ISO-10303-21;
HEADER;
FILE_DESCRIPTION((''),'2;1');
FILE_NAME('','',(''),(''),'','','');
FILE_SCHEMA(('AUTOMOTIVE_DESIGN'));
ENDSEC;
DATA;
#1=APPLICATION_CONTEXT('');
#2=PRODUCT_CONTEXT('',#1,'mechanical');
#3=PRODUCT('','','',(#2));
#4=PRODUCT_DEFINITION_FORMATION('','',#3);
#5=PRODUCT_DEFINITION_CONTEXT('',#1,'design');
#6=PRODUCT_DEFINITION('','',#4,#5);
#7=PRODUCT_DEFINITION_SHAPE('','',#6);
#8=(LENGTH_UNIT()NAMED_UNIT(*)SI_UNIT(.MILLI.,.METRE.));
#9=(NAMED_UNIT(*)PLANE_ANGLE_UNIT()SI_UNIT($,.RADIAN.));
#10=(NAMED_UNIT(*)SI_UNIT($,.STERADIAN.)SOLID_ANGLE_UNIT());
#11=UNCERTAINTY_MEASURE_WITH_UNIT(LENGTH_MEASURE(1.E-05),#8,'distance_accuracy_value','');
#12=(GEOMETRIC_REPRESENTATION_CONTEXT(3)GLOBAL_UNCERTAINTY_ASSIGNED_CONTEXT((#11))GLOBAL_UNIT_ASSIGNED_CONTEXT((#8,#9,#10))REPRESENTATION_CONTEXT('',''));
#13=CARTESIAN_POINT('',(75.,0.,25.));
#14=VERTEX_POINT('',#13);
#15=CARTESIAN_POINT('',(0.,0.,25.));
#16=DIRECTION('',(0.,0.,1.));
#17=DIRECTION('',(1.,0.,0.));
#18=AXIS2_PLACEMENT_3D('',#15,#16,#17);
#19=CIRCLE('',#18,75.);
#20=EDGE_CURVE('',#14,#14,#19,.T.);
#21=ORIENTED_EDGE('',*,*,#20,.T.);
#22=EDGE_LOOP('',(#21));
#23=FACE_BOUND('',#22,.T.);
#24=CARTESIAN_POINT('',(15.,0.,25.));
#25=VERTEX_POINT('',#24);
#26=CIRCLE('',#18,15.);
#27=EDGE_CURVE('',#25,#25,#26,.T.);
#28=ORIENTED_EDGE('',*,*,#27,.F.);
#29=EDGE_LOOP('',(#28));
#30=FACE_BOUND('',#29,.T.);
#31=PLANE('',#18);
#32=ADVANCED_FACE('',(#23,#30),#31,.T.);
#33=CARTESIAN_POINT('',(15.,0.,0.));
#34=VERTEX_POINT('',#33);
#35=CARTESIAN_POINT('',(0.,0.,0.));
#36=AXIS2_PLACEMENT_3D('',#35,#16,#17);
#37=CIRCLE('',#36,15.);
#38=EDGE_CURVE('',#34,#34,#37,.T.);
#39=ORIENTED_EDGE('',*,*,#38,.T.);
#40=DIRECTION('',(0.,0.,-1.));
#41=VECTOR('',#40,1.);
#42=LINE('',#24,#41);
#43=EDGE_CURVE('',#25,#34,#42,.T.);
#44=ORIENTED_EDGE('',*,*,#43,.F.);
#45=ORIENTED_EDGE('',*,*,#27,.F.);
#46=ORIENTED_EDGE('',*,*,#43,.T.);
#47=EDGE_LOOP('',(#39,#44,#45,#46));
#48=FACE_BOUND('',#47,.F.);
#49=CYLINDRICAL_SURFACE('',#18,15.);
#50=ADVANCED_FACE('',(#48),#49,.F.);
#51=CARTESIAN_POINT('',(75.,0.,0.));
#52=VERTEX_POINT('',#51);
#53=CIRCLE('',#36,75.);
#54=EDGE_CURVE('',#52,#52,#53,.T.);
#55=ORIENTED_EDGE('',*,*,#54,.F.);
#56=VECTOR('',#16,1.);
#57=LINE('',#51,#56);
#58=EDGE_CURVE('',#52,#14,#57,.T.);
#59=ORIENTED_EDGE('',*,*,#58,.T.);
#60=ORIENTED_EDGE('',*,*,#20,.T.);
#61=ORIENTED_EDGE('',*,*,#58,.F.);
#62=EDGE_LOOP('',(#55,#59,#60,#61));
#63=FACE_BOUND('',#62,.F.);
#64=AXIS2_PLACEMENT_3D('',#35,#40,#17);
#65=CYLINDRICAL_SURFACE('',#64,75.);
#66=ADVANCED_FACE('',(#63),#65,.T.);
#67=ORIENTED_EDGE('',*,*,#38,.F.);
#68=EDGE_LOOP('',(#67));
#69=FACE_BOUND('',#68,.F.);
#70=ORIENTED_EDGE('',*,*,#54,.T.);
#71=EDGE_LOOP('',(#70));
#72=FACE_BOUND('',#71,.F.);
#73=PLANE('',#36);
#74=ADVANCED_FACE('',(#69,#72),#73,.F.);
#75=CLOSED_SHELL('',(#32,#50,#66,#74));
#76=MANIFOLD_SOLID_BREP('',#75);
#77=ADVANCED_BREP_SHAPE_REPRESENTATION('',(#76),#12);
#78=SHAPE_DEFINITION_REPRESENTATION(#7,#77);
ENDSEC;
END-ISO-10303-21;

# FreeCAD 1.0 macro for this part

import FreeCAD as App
import Part
import Sketcher
from FreeCAD import Vector

doc = App.newDocument("Part")
body = doc.addObject("PartDesign::Body", "Body")

# Sketch on XY plane
sketch1 = body.newObject("Sketcher::SketchObject", "Sketch")
sketch1.AttachmentSupport = (doc.getObject("XY_Plane"), [""])
sketch1.MapMode = "FlatFace"
sketch1.addGeometry(Part.Circle(Vector(0, 0, 0), Vector(0, 0, 1), 75), False)
sketch1.addConstraint([
    Sketcher.Constraint("Coincident", 0, 3, -1, 1),
    Sketcher.Constraint("Diameter", 0, 150.0),
])
pad1 = body.newObject("PartDesign::Pad", "Pad")
pad1.Profile = sketch1
pad1.Length = 25

# Sketch on XY plane
sketch2 = body.newObject("Sketcher::SketchObject", "Sketch001")
sketch2.AttachmentSupport = (doc.getObject("XY_Plane"), [""])
sketch2.MapMode = "FlatFace"
sketch2.AttachmentOffset = App.Placement(Vector(0, 0, 25), App.Rotation())
sketch2.addGeometry(Part.Circle(Vector(0, 0, 0), Vector(0, 0, 1), 15), False)
sketch2.addConstraint([
    Sketcher.Constraint("Coincident", 0, 3, -1, 1),
    Sketcher.Constraint("Diameter", 0, 30.0),
])
pocket1 = body.newObject("PartDesign::Pocket", "Pocket")
pocket1.Profile = sketch2
pocket1.Type = "ThroughAll"

doc.recompute()
